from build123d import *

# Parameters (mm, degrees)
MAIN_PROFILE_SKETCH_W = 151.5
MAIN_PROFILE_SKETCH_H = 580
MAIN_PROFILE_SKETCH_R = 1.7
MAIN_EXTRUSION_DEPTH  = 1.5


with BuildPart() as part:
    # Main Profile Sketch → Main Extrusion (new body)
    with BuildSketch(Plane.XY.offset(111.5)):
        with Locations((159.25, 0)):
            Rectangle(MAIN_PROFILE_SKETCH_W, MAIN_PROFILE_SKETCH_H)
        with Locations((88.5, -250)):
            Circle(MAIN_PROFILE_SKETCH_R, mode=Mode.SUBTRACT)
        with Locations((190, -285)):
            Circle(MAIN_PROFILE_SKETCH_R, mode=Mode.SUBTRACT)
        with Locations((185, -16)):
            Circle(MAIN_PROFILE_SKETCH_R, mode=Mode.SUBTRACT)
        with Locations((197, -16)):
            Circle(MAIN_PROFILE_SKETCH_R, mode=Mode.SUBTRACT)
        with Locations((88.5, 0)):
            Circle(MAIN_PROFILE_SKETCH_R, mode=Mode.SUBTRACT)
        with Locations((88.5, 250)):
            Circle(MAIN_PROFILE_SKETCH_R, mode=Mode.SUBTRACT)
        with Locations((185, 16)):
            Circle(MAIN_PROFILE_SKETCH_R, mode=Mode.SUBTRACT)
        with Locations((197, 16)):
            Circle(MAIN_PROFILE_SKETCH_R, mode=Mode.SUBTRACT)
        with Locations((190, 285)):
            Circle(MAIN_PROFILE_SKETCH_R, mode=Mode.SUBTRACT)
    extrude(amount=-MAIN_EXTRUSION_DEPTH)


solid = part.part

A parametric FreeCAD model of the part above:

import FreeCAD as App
import Part
import Sketcher
from FreeCAD import Vector
Q = App.Units.Quantity


def add_polygon(sketch, points):
    """Adds a closed chain of lines whose ends are joined by coincident constraints."""
    first, n = sketch.GeometryCount, len(points)
    for a, b in zip(points, points[1:] + points[:1]):
        sketch.addGeometry(Part.LineSegment(App.Vector(*a, 0), App.Vector(*b, 0)), False)
    for i in range(n):
        sketch.addConstraint(Sketcher.Constraint("Coincident", first + i, 2, first + (i + 1) % n, 1))

doc = App.newDocument("Part")
body = doc.addObject("PartDesign::Body", "Body")

# Sketch on XY plane
sketch1 = doc.addObject("Sketcher::SketchObject", "Sketch")
body.addObject(sketch1)
sketch1.AttachmentSupport = (doc.XY_Plane, [""])
sketch1.MapMode = "FlatFace"
sketch1.AttachmentOffset = App.Placement(Vector(0, 0, 111.5), App.Rotation())
add_polygon(sketch1, [(83.5, 290), (83.5, -290), (235, -290), (235, 290)])  # lines 0-3
sketch1.addGeometry(Part.Circle(Vector(88.5, -250, 0), Vector(0, 0, 1), 1.7), False)  # 4
sketch1.addGeometry(Part.Circle(Vector(190, -285, 0), Vector(0, 0, 1), 1.7), False)  # 5
sketch1.addGeometry(Part.Circle(Vector(185, -16, 0), Vector(0, 0, 1), 1.7), False)  # 6
sketch1.addGeometry(Part.Circle(Vector(197, -16, 0), Vector(0, 0, 1), 1.7), False)  # 7
sketch1.addGeometry(Part.Circle(Vector(88.5, 0, 0), Vector(0, 0, 1), 1.7), False)  # 8
sketch1.addGeometry(Part.Circle(Vector(88.5, 250, 0), Vector(0, 0, 1), 1.7), False)  # 9
sketch1.addGeometry(Part.Circle(Vector(185, 16, 0), Vector(0, 0, 1), 1.7), False)  # 10
sketch1.addGeometry(Part.Circle(Vector(197, 16, 0), Vector(0, 0, 1), 1.7), False)  # 11
sketch1.addGeometry(Part.Circle(Vector(190, 285, 0), Vector(0, 0, 1), 1.7), False)  # 12
sketch1.addConstraint([
    Sketcher.Constraint("Vertical", 0),
    Sketcher.Constraint("Horizontal", 1),
    Sketcher.Constraint("Vertical", 2),
    Sketcher.Constraint("Horizontal", 3),
    Sketcher.Constraint("Equal", 4, 5),
    Sketcher.Constraint("Equal", 5, 6),
    Sketcher.Constraint("Equal", 6, 7),
    Sketcher.Constraint("Equal", 7, 8),
    Sketcher.Constraint("Equal", 8, 9),
    Sketcher.Constraint("Equal", 9, 10),
    Sketcher.Constraint("Equal", 10, 11),
    Sketcher.Constraint("Equal", 11, 12),
    Sketcher.Constraint("Symmetric", 4, 3, 9, 3, -1),
    Sketcher.Constraint("Symmetric", 6, 3, 10, 3, -1),
    Sketcher.Constraint("Symmetric", 7, 3, 11, 3, -1),
    Sketcher.Constraint("Symmetric", 5, 3, 12, 3, -1),
    Sketcher.Constraint("PointOnObject", 8, 3, -1),
    Sketcher.Constraint("Horizontal", 6, 3, 7, 3),
    Sketcher.Constraint("Vertical", 4, 3, 8, 3),
    Sketcher.Constraint("Diameter", 4, Q("3.4 mm")),
    Sketcher.Constraint("DistanceY", 0, 2, 0, 1, Q("580 mm")),
    Sketcher.Constraint("DistanceX", 1, 1, 1, 2, Q("151.5 mm")),
    Sketcher.Constraint("DistanceY", 4, 3, -1, 1, Q("250 mm")),
    Sketcher.Constraint("DistanceX", -1, 1, 5, 3, Q("190 mm")),
    Sketcher.Constraint("DistanceY", 5, 3, -1, 1, Q("285 mm")),
    Sketcher.Constraint("DistanceX", -1, 1, 6, 3, Q("185 mm")),
    Sketcher.Constraint("DistanceY", 6, 3, -1, 1, Q("16 mm")),
    Sketcher.Constraint("DistanceX", -1, 1, 7, 3, Q("197 mm")),
    Sketcher.Constraint("DistanceY", 0, 2, -1, 1, Q("290 mm")),
    Sketcher.Constraint("DistanceX", -1, 1, 1, 2, Q("235 mm")),
    Sketcher.Constraint("DistanceX", 0, 2, 4, 3, Q("5 mm")),
])
pad1 = doc.addObject("PartDesign::Pad", "Pad")
body.addObject(pad1)
pad1.Profile = sketch1
pad1.Length = 1.5
pad1.Reversed = True

doc.recompute()
